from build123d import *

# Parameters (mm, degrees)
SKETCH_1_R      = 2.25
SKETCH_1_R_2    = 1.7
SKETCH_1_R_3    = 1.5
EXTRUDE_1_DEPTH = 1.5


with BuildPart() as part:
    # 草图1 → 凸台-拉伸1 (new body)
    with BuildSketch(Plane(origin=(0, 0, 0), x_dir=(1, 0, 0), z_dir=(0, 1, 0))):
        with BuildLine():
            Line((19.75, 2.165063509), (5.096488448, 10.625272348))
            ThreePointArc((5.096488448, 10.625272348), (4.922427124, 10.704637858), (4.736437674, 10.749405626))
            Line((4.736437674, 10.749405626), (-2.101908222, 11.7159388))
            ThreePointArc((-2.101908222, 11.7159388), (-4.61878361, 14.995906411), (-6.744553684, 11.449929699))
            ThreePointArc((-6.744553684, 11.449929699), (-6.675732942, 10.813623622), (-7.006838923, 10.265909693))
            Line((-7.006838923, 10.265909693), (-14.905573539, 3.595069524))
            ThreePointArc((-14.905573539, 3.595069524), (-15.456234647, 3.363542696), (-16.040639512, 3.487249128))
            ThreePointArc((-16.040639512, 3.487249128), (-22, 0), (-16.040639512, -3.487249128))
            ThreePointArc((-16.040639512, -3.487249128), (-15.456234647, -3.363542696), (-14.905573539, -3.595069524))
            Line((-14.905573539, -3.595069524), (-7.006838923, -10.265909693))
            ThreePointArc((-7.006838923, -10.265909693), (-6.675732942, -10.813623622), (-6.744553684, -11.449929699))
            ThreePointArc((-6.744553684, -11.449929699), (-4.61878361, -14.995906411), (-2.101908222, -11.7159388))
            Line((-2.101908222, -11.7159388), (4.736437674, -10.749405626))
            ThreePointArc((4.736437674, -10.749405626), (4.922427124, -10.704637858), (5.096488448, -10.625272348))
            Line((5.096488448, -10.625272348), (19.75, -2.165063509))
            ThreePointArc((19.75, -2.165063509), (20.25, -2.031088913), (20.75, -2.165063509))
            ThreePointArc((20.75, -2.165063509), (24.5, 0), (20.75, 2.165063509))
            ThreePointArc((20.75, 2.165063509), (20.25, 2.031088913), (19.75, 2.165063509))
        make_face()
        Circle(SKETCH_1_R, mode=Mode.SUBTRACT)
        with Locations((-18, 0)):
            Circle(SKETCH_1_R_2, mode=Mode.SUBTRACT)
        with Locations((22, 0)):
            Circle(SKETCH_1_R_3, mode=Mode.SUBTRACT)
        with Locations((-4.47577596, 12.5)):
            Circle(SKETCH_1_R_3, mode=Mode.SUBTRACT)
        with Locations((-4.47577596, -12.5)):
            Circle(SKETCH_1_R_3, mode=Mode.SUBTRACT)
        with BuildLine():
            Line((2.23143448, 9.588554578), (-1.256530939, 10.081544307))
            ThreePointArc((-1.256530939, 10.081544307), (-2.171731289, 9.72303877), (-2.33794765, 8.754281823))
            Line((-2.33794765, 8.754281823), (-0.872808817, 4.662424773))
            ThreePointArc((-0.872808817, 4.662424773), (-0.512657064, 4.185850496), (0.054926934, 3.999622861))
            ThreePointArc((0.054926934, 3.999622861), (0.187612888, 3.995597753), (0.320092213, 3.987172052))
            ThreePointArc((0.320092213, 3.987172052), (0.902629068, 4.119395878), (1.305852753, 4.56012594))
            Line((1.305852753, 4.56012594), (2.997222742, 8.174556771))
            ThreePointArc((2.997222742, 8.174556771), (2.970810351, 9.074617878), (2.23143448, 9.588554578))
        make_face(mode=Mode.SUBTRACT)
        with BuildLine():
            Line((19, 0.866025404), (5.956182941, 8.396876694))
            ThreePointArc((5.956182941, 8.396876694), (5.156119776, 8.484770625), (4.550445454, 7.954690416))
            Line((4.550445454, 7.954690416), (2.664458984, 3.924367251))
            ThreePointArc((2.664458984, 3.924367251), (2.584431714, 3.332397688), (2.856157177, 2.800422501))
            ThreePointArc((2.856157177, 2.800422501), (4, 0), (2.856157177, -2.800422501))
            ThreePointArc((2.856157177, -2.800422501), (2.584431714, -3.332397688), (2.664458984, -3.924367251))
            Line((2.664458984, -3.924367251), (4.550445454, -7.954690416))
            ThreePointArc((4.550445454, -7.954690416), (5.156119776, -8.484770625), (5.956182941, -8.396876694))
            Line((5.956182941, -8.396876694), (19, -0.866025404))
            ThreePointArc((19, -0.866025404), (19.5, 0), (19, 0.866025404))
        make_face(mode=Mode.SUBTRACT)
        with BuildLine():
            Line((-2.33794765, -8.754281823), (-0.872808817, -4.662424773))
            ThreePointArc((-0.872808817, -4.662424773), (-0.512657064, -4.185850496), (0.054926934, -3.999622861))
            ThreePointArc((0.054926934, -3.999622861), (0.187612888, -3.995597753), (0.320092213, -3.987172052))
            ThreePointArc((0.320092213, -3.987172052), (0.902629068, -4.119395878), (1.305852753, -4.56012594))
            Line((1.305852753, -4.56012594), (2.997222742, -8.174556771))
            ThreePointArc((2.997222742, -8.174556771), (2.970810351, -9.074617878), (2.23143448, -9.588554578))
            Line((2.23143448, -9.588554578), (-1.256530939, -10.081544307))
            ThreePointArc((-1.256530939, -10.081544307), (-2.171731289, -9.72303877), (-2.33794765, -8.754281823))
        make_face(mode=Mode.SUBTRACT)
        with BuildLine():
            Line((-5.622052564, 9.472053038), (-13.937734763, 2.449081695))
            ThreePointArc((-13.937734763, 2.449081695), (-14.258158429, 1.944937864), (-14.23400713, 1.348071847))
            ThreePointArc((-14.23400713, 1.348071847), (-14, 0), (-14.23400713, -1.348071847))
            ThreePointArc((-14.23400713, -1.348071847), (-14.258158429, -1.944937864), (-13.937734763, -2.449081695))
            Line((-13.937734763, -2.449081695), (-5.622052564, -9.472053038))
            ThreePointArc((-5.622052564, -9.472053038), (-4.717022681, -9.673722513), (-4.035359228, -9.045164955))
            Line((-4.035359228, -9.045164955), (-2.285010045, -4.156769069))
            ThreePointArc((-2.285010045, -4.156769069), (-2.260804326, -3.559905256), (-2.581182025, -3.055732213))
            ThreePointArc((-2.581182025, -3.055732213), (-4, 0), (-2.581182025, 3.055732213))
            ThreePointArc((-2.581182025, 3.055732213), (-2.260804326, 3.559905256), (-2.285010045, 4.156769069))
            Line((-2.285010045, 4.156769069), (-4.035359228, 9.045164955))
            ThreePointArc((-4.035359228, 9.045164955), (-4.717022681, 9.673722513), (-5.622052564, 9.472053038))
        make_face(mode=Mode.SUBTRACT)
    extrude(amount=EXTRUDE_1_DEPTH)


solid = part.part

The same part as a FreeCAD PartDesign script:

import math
import FreeCAD as App
import Part
import Sketcher
from FreeCAD import Vector
Q = App.Units.Quantity

doc = App.newDocument("Part")
params = doc.addObject("Spreadsheet::Sheet", "Params")
for row, (alias, value) in enumerate([
    ("sketch1_diameter", "3 mm"),
    ("sketch1_radius", "1 mm"),
    ("sketch1_radius2", "4 mm"),
    ("sketch1_diameter2", "3.4 mm"),
    ("sketch1_diameter3", "4.5 mm"),
    ("pad1_length", "1.5 mm"),
], start=1):
    params.set(f"A{row}", alias)
    params.set(f"B{row}", "=" + value)
    params.setAlias(f"B{row}", alias)

body = doc.addObject("PartDesign::Body", "Body")

# Sketch on XZ plane
sketch1 = body.newObject("Sketcher::SketchObject", "Sketch")
sketch1.AttachmentSupport = (doc.getObject("XZ_Plane"), [""])
sketch1.MapMode = "FlatFace"
sketch1.addGeometry(Part.LineSegment(Vector(19.75, -2.17, 0), Vector(5.1, -10.63, 0)), False)
sketch1.addGeometry(Part.ArcOfCircle(Part.Circle(Vector(4.6, -9.76, 0), Vector(0, 0, 1), 1), math.radians(-82), math.radians(-60)), False)
sketch1.addGeometry(Part.LineSegment(Vector(4.74, -10.75, 0), Vector(-2.1, -11.72, 0)), False)
sketch1.addGeometry(Part.ArcOfCircle(Part.Circle(Vector(-4.48, -12.5, 0), Vector(0, 0, 1), 2.5), math.radians(155), math.radians(378)), False)
sketch1.addGeometry(Part.ArcOfCircle(Part.Circle(Vector(-7.65, -11.03, 0), Vector(0, 0, 1), 1), math.radians(-25), math.radians(50)), False)
sketch1.addGeometry(Part.LineSegment(Vector(-7.01, -10.27, 0), Vector(-14.91, -3.6, 0)), False)
sketch1.addGeometry(Part.ArcOfCircle(Part.Circle(Vector(-15.55, -4.36, 0), Vector(0, 0, 1), 1), math.radians(50), math.radians(119)), False)
sketch1.addGeometry(Part.ArcOfCircle(Part.Circle(Vector(-18, 0, 0), Vector(0, 0, 1), 4), math.radians(61), math.radians(299)), False)
sketch1.addGeometry(Part.ArcOfCircle(Part.Circle(Vector(-15.55, 4.36, 0), Vector(0, 0, 1), 1), math.radians(-119), math.radians(-50)), False)
sketch1.addGeometry(Part.LineSegment(Vector(-14.91, 3.6, 0), Vector(-7.01, 10.27, 0)), False)
sketch1.addGeometry(Part.ArcOfCircle(Part.Circle(Vector(-7.65, 11.03, 0), Vector(0, 0, 1), 1), math.radians(-50), math.radians(25)), False)
sketch1.addGeometry(Part.ArcOfCircle(Part.Circle(Vector(-4.48, 12.5, 0), Vector(0, 0, 1), 2.5), math.radians(-18), math.radians(205)), False)
sketch1.addGeometry(Part.LineSegment(Vector(-2.1, 11.72, 0), Vector(4.74, 10.75, 0)), False)
sketch1.addGeometry(Part.ArcOfCircle(Part.Circle(Vector(4.6, 9.76, 0), Vector(0, 0, 1), 1), math.radians(60), math.radians(82)), False)
sketch1.addGeometry(Part.LineSegment(Vector(5.1, 10.63, 0), Vector(19.75, 2.17, 0)), False)
sketch1.addGeometry(Part.ArcOfCircle(Part.Circle(Vector(20.25, 3.03, 0), Vector(0, 0, 1), 1), math.radians(-120), math.radians(-60)), False)
sketch1.addGeometry(Part.ArcOfCircle(Part.Circle(Vector(22, 0, 0), Vector(0, 0, 1), 2.5), math.radians(-120), math.radians(120)), False)
sketch1.addGeometry(Part.ArcOfCircle(Part.Circle(Vector(20.25, -3.03, 0), Vector(0, 0, 1), 1), math.radians(60), math.radians(120)), False)
sketch1.addGeometry(Part.Circle(Vector(-4.48, 12.5, 0), Vector(0, 0, 1), 1.5), False)
sketch1.addGeometry(Part.ArcOfCircle(Part.Circle(Vector(-1.4, 9.09, 0), Vector(0, 0, 1), 1), math.radians(82), math.radians(200)), False)
sketch1.addGeometry(Part.LineSegment(Vector(-2.34, 8.75, 0), Vector(-0.87, 4.66, 0)), False)
sketch1.addGeometry(Part.ArcOfCircle(Part.Circle(Vector(0.07, 5, 0), Vector(0, 0, 1), 1), math.radians(-160), math.radians(-91)), False)
sketch1.addGeometry(Part.ArcOfCircle(Part.Circle(Vector(0, 0, 0), Vector(0, 0, 1), 4), math.radians(85.41), math.radians(89.21)), False)
sketch1.addGeometry(Part.ArcOfCircle(Part.Circle(Vector(0.4, 4.98, 0), Vector(0, 0, 1), 1), math.radians(-95), math.radians(-25)), False)
sketch1.addGeometry(Part.LineSegment(Vector(1.31, 4.56, 0), Vector(3, 8.17, 0)), False)
sketch1.addGeometry(Part.ArcOfCircle(Part.Circle(Vector(2.09, 8.6, 0), Vector(0, 0, 1), 1), math.radians(-25), math.radians(82)), False)
sketch1.addGeometry(Part.LineSegment(Vector(2.23, 9.59, 0), Vector(-1.26, 10.08, 0)), False)
sketch1.addGeometry(Part.Circle(Vector(-18, 0, 0), Vector(0, 0, 1), 1.7), False)
sketch1.addGeometry(Part.LineSegment(Vector(-13.94, -2.45, 0), Vector(-5.62, -9.47, 0)), False)
sketch1.addGeometry(Part.ArcOfCircle(Part.Circle(Vector(-4.98, -8.71, 0), Vector(0, 0, 1), 1), math.radians(-130), math.radians(-20)), False)
sketch1.addGeometry(Part.LineSegment(Vector(-4.04, -9.05, 0), Vector(-2.29, -4.16, 0)), False)
sketch1.addGeometry(Part.ArcOfCircle(Part.Circle(Vector(-3.23, -3.82, 0), Vector(0, 0, 1), 1), math.radians(-20), math.radians(50)), False)
sketch1.addGeometry(Part.ArcOfCircle(Part.Circle(Vector(0, 0, 0), Vector(0, 0, 1), 4), math.radians(130), math.radians(230)), False)
sketch1.addGeometry(Part.ArcOfCircle(Part.Circle(Vector(-3.23, 3.82, 0), Vector(0, 0, 1), 1), math.radians(-50), math.radians(20)), False)
sketch1.addGeometry(Part.LineSegment(Vector(-2.29, 4.16, 0), Vector(-4.04, 9.05, 0)), False)
sketch1.addGeometry(Part.ArcOfCircle(Part.Circle(Vector(-4.98, 8.71, 0), Vector(0, 0, 1), 1), math.radians(20), math.radians(130)), False)
sketch1.addGeometry(Part.LineSegment(Vector(-5.62, 9.47, 0), Vector(-13.94, 2.45, 0)), False)
sketch1.addGeometry(Part.ArcOfCircle(Part.Circle(Vector(-13.29, 1.69, 0), Vector(0, 0, 1), 1), math.radians(130), math.radians(200)), False)
sketch1.addGeometry(Part.ArcOfCircle(Part.Circle(Vector(-18, 0, 0), Vector(0, 0, 1), 4), math.radians(-20), math.radians(20)), False)
sketch1.addGeometry(Part.ArcOfCircle(Part.Circle(Vector(-13.29, -1.69, 0), Vector(0, 0, 1), 1), math.radians(160), math.radians(230)), False)
sketch1.addGeometry(Part.Circle(Vector(0, 0, 0), Vector(0, 0, 1), 2.25), False)
sketch1.addGeometry(Part.LineSegment(Vector(-1.26, -10.08, 0), Vector(2.23, -9.59, 0)), False)
sketch1.addGeometry(Part.ArcOfCircle(Part.Circle(Vector(2.09, -8.6, 0), Vector(0, 0, 1), 1), math.radians(-82), math.radians(25)), False)
sketch1.addGeometry(Part.LineSegment(Vector(3, -8.17, 0), Vector(1.31, -4.56, 0)), False)
sketch1.addGeometry(Part.ArcOfCircle(Part.Circle(Vector(0.4, -4.98, 0), Vector(0, 0, 1), 1), math.radians(25), math.radians(95)), False)
sketch1.addGeometry(Part.ArcOfCircle(Part.Circle(Vector(0, 0, 0), Vector(0, 0, 1), 4), math.radians(-89.21), math.radians(-85.41)), False)
sketch1.addGeometry(Part.ArcOfCircle(Part.Circle(Vector(0.07, -5, 0), Vector(0, 0, 1), 1), math.radians(91), math.radians(160)), False)
sketch1.addGeometry(Part.LineSegment(Vector(-0.87, -4.66, 0), Vector(-2.34, -8.75, 0)), False)
sketch1.addGeometry(Part.ArcOfCircle(Part.Circle(Vector(-1.4, -9.09, 0), Vector(0, 0, 1), 1), math.radians(160), math.radians(278)), False)
sketch1.addGeometry(Part.Circle(Vector(-4.48, -12.5, 0), Vector(0, 0, 1), 1.5), False)
sketch1.addGeometry(Part.LineSegment(Vector(5.96, -8.4, 0), Vector(19, -0.87, 0)), False)
sketch1.addGeometry(Part.ArcOfCircle(Part.Circle(Vector(18.5, 0, 0), Vector(0, 0, 1), 1), math.radians(-60), math.radians(60)), False)
sketch1.addGeometry(Part.LineSegment(Vector(19, 0.87, 0), Vector(5.96, 8.4, 0)), False)
sketch1.addGeometry(Part.ArcOfCircle(Part.Circle(Vector(5.46, 7.53, 0), Vector(0, 0, 1), 1), math.radians(60), math.radians(155)), False)
sketch1.addGeometry(Part.LineSegment(Vector(4.55, 7.95, 0), Vector(2.66, 3.92, 0)), False)
sketch1.addGeometry(Part.ArcOfCircle(Part.Circle(Vector(3.57, 3.5, 0), Vector(0, 0, 1), 1), math.radians(155), math.radians(224)), False)
sketch1.addGeometry(Part.ArcOfCircle(Part.Circle(Vector(0, 0, 0), Vector(0, 0, 1), 4), math.radians(-44), math.radians(44)), False)
sketch1.addGeometry(Part.ArcOfCircle(Part.Circle(Vector(3.57, -3.5, 0), Vector(0, 0, 1), 1), math.radians(136), math.radians(205)), False)
sketch1.addGeometry(Part.LineSegment(Vector(2.66, -3.92, 0), Vector(4.55, -7.95, 0)), False)
sketch1.addGeometry(Part.ArcOfCircle(Part.Circle(Vector(5.46, -7.53, 0), Vector(0, 0, 1), 1), math.radians(-155), math.radians(-60)), False)
sketch1.addGeometry(Part.Circle(Vector(22, 0, 0), Vector(0, 0, 1), 1.5), False)
sketch1.addConstraint(Sketcher.Constraint("Tangent", 0, 2, 1, 2))
sketch1.addConstraint(Sketcher.Constraint("Tangent", 1, 1, 2, 1))
sketch1.addConstraint(Sketcher.Constraint("Coincident", 2, 2, 3, 2))
sketch1.addConstraint(Sketcher.Constraint("Tangent", 3, 1, 4, 1))
sketch1.addConstraint(Sketcher.Constraint("Tangent", 4, 2, 5, 1))
sketch1.addConstraint(Sketcher.Constraint("Tangent", 5, 2, 6, 1))
sketch1.addConstraint(Sketcher.Constraint("Tangent", 6, 2, 7, 2))
sketch1.addConstraint(Sketcher.Constraint("Tangent", 7, 1, 8, 1))
sketch1.addConstraint(Sketcher.Constraint("Tangent", 8, 2, 9, 1))
sketch1.addConstraint(Sketcher.Constraint("Tangent", 9, 2, 10, 1))
sketch1.addConstraint(Sketcher.Constraint("Tangent", 10, 2, 11, 2))
sketch1.addConstraint(Sketcher.Constraint("Coincident", 11, 1, 12, 1))
sketch1.addConstraint(Sketcher.Constraint("Tangent", 12, 2, 13, 2))
sketch1.addConstraint(Sketcher.Constraint("Tangent", 13, 1, 14, 1))
sketch1.addConstraint(Sketcher.Constraint("Tangent", 14, 2, 15, 1))
sketch1.addConstraint(Sketcher.Constraint("Tangent", 15, 2, 16, 2))
sketch1.addConstraint(Sketcher.Constraint("Tangent", 16, 1, 17, 1))
sketch1.addConstraint(Sketcher.Constraint("Tangent", 17, 2, 0, 1))
sketch1.addConstraint(Sketcher.Constraint("Tangent", 19, 2, 20, 1))
sketch1.addConstraint(Sketcher.Constraint("Tangent", 20, 2, 21, 1))
sketch1.addConstraint(Sketcher.Constraint("Tangent", 21, 2, 22, 2))
sketch1.addConstraint(Sketcher.Constraint("Tangent", 22, 1, 23, 1))
sketch1.addConstraint(Sketcher.Constraint("Tangent", 23, 2, 24, 1))
sketch1.addConstraint(Sketcher.Constraint("Tangent", 24, 2, 25, 1))
sketch1.addConstraint(Sketcher.Constraint("Tangent", 25, 2, 26, 1))
sketch1.addConstraint(Sketcher.Constraint("Tangent", 26, 2, 19, 1))
sketch1.addConstraint(Sketcher.Constraint("Tangent", 28, 2, 29, 1))
sketch1.addConstraint(Sketcher.Constraint("Tangent", 29, 2, 30, 1))
sketch1.addConstraint(Sketcher.Constraint("Tangent", 30, 2, 31, 1))
sketch1.addConstraint(Sketcher.Constraint("Tangent", 31, 2, 32, 2))
sketch1.addConstraint(Sketcher.Constraint("Tangent", 32, 1, 33, 1))
sketch1.addConstraint(Sketcher.Constraint("Tangent", 33, 2, 34, 1))
sketch1.addConstraint(Sketcher.Constraint("Tangent", 34, 2, 35, 1))
sketch1.addConstraint(Sketcher.Constraint("Tangent", 35, 2, 36, 1))
sketch1.addConstraint(Sketcher.Constraint("Tangent", 36, 2, 37, 1))
sketch1.addConstraint(Sketcher.Constraint("Tangent", 37, 2, 38, 2))
sketch1.addConstraint(Sketcher.Constraint("Tangent", 38, 1, 39, 1))
sketch1.addConstraint(Sketcher.Constraint("Tangent", 39, 2, 28, 1))
sketch1.addConstraint(Sketcher.Constraint("Tangent", 41, 2, 42, 1))
sketch1.addConstraint(Sketcher.Constraint("Tangent", 42, 2, 43, 1))
sketch1.addConstraint(Sketcher.Constraint("Tangent", 43, 2, 44, 1))
sketch1.addConstraint(Sketcher.Constraint("Tangent", 44, 2, 45, 2))
sketch1.addConstraint(Sketcher.Constraint("Tangent", 45, 1, 46, 1))
sketch1.addConstraint(Sketcher.Constraint("Tangent", 46, 2, 47, 1))
sketch1.addConstraint(Sketcher.Constraint("Tangent", 47, 2, 48, 1))
sketch1.addConstraint(Sketcher.Constraint("Tangent", 48, 2, 41, 1))
sketch1.addConstraint(Sketcher.Constraint("Tangent", 50, 2, 51, 1))
sketch1.addConstraint(Sketcher.Constraint("Tangent", 51, 2, 52, 1))
sketch1.addConstraint(Sketcher.Constraint("Tangent", 52, 2, 53, 1))
sketch1.addConstraint(Sketcher.Constraint("Tangent", 53, 2, 54, 1))
sketch1.addConstraint(Sketcher.Constraint("Tangent", 54, 2, 55, 1))
sketch1.addConstraint(Sketcher.Constraint("Tangent", 55, 2, 56, 2))
sketch1.addConstraint(Sketcher.Constraint("Tangent", 56, 1, 57, 1))
sketch1.addConstraint(Sketcher.Constraint("Tangent", 57, 2, 58, 1))
sketch1.addConstraint(Sketcher.Constraint("Tangent", 58, 2, 59, 1))
sketch1.addConstraint(Sketcher.Constraint("Tangent", 59, 2, 50, 1))
sketch1.addConstraint(Sketcher.Constraint("Coincident", 22, 3, -1, 1))
sketch1.addConstraint(Sketcher.Constraint("Coincident", 32, 3, -1, 1))
sketch1.addConstraint(Sketcher.Constraint("Coincident", 40, 3, -1, 1))
sketch1.addConstraint(Sketcher.Constraint("Coincident", 45, 3, -1, 1))
sketch1.addConstraint(Sketcher.Constraint("Coincident", 56, 3, -1, 1))
sketch1.addConstraint(Sketcher.Constraint("Coincident", 18, 3, 11, 3))
sketch1.addConstraint(Sketcher.Constraint("Coincident", 27, 3, 7, 3))
sketch1.addConstraint(Sketcher.Constraint("Coincident", 38, 3, 7, 3))
sketch1.addConstraint(Sketcher.Constraint("Coincident", 49, 3, 3, 3))
sketch1.addConstraint(Sketcher.Constraint("Coincident", 60, 3, 16, 3))
sketch1.addConstraint(Sketcher.Constraint("Equal", 1, 4))
sketch1.addConstraint(Sketcher.Constraint("Equal", 4, 6))
sketch1.addConstraint(Sketcher.Constraint("Equal", 6, 8))
sketch1.addConstraint(Sketcher.Constraint("Equal", 8, 10))
sketch1.addConstraint(Sketcher.Constraint("Equal", 3, 11))
sketch1.addConstraint(Sketcher.Constraint("Equal", 10, 13))
sketch1.addConstraint(Sketcher.Constraint("Equal", 13, 15))
sketch1.addConstraint(Sketcher.Constraint("Equal", 11, 16))
sketch1.addConstraint(Sketcher.Constraint("Equal", 15, 17))
sketch1.addConstraint(Sketcher.Constraint("Equal", 17, 19))
sketch1.addConstraint(Sketcher.Constraint("Equal", 19, 21))
sketch1.addConstraint(Sketcher.Constraint("Equal", 7, 22))
sketch1.addConstraint(Sketcher.Constraint("Equal", 21, 23))
sketch1.addConstraint(Sketcher.Constraint("Equal", 23, 25))
sketch1.addConstraint(Sketcher.Constraint("Equal", 25, 29))
sketch1.addConstraint(Sketcher.Constraint("Equal", 29, 31))
sketch1.addConstraint(Sketcher.Constraint("Equal", 22, 32))
sketch1.addConstraint(Sketcher.Constraint("Equal", 31, 33))
sketch1.addConstraint(Sketcher.Constraint("Equal", 33, 35))
sketch1.addConstraint(Sketcher.Constraint("Equal", 35, 37))
sketch1.addConstraint(Sketcher.Constraint("Equal", 32, 38))
sketch1.addConstraint(Sketcher.Constraint("Equal", 37, 39))
sketch1.addConstraint(Sketcher.Constraint("Equal", 39, 42))
sketch1.addConstraint(Sketcher.Constraint("Equal", 42, 44))
sketch1.addConstraint(Sketcher.Constraint("Equal", 38, 45))
sketch1.addConstraint(Sketcher.Constraint("Equal", 44, 46))
sketch1.addConstraint(Sketcher.Constraint("Equal", 46, 48))
sketch1.addConstraint(Sketcher.Constraint("Equal", 18, 49))
sketch1.addConstraint(Sketcher.Constraint("Equal", 48, 51))
sketch1.addConstraint(Sketcher.Constraint("Equal", 51, 53))
sketch1.addConstraint(Sketcher.Constraint("Equal", 53, 55))
sketch1.addConstraint(Sketcher.Constraint("Equal", 45, 56))
sketch1.addConstraint(Sketcher.Constraint("Equal", 55, 57))
sketch1.addConstraint(Sketcher.Constraint("Equal", 57, 59))
sketch1.addConstraint(Sketcher.Constraint("Equal", 49, 60))
sketch1.addConstraint(Sketcher.Constraint("Symmetric", 6, 3, 8, 3, -1))
sketch1.addConstraint(Sketcher.Constraint("Symmetric", 4, 3, 10, 3, -1))
sketch1.addConstraint(Sketcher.Constraint("Symmetric", 1, 3, 13, 3, -1))
sketch1.addConstraint(Sketcher.Constraint("Symmetric", 15, 3, 17, 3, -1))
sketch1.addConstraint(Sketcher.Constraint("Symmetric", 29, 3, 35, 3, -1))
sketch1.addConstraint(Sketcher.Constraint("Symmetric", 25, 3, 42, 3, -1))
sketch1.addConstraint(Sketcher.Constraint("Symmetric", 19, 3, 48, 3, -1))
sketch1.addConstraint(Sketcher.Constraint("Symmetric", 53, 3, 59, 3, -1))
sketch1.addConstraint(Sketcher.Constraint("Symmetric", 2, 2, 11, 1, -1))
sketch1.addConstraint(Sketcher.Constraint("PointOnObject", 51, 3, -1))
sketch1.addConstraint(Sketcher.Constraint("Parallel", 12, 26))
sketch1.addConstraint(Sketcher.Constraint("Parallel", 5, 28))
sketch1.addConstraint(Sketcher.Constraint("Parallel", 20, 34))
sketch1.addConstraint(Sketcher.Constraint("Parallel", 9, 36))
sketch1.addConstraint(Sketcher.Constraint("Parallel", 30, 47))
sketch1.addConstraint(Sketcher.Constraint("Parallel", 0, 50))
sketch1.addConstraint(Sketcher.Constraint("Parallel", 24, 54))
sketch1.addConstraint(Sketcher.Constraint("Parallel", 43, 58))
sketch1.addConstraint(Sketcher.Constraint("Horizontal", 14, 2, 15, 2))
sketch1.addConstraint(Sketcher.Constraint("Vertical", 31, 3, 33, 3))
sketch1.addConstraint(Sketcher.Constraint("Vertical", 23, 3, 44, 3))
sketch1.addConstraint(Sketcher.Constraint("Diameter", 18, Q("3 mm")))
sketch1.addConstraint(Sketcher.Constraint("Radius", 1, Q("1 mm")))
sketch1.addConstraint(Sketcher.Constraint("Radius", 7, Q("4 mm")))
sketch1.addConstraint(Sketcher.Constraint("Diameter", 27, Q("3.4 mm")))
sketch1.addConstraint(Sketcher.Constraint("Diameter", 40, Q("4.5 mm")))
sketch1.addConstraint(Sketcher.Constraint("Radius", 3, Q("2.5 mm")))
sketch1.addConstraint(Sketcher.Constraint("Angle", 0, Q("-150 deg")))
sketch1.addConstraint(Sketcher.Constraint("DistanceX", 7, 3, -1, 1, Q("18 mm")))
sketch1.addConstraint(Sketcher.Constraint("DistanceX", -1, 1, 16, 3, Q("22 mm")))
sketch1.addConstraint(Sketcher.Constraint("DistanceX", -1, 1, 50, 2, Q("19 mm")))
sketch1.addConstraint(Sketcher.Constraint("DistanceY", 3, 3, -1, 1, Q("12.5 mm")))
sketch1.addConstraint(Sketcher.Constraint("DistanceY", 4, 3, -1, 1, Q("11.029902 mm")))
sketch1.addConstraint(Sketcher.Constraint("DistanceX", 6, 3, -1, 1, Q("15.550799 mm")))
sketch1.addConstraint(Sketcher.Constraint("Distance", 54, Q("4.44977 mm")))
sketch1.addConstraint(Sketcher.Constraint("DistanceX", -1, 1, 1, 3, Q("4.596488 mm")))
sketch1.addConstraint(Sketcher.Constraint("DistanceX", 19, 3, -1, 1, Q("1.39648 mm")))
sketch1.addConstraint(Sketcher.Constraint("DistanceX", -1, 1, 21, 3, Q("0.068659 mm")))
sketch1.addConstraint(Sketcher.Constraint("DistanceY", 29, 3, -1, 1, Q("8.708061 mm")))
sketch1.addConstraint(Sketcher.Constraint("DistanceX", 37, 3, -1, 1, Q("13.292509 mm")))
sketch1.addConstraint(Sketcher.Constraint("DistanceY", -1, 1, 53, 3, Q("7.530851 mm")))
sketch1.addConstraint(Sketcher.Constraint("DistanceX", 2, 2, -1, 1, Q("2.101908 mm")))
sketch1.addConstraint(Sketcher.Constraint("DistanceY", 2, 2, -1, 1, Q("11.715939 mm")))
sketch1.addConstraint(Sketcher.Constraint("DistanceY", -1, 1, 19, 2, Q("8.754282 mm")))
sketch1.addConstraint(Sketcher.Constraint("Distance", 24, Q("3.990594 mm")))
sketch1.setExpression("Constraints[122]", "Params.sketch1_diameter")
sketch1.setExpression("Constraints[123]", "Params.sketch1_radius")
sketch1.setExpression("Constraints[124]", "Params.sketch1_radius2")
sketch1.setExpression("Constraints[125]", "Params.sketch1_diameter2")
sketch1.setExpression("Constraints[126]", "Params.sketch1_diameter3")
pad1 = body.newObject("PartDesign::Pad", "Pad")
pad1.Profile = sketch1
pad1.setExpression("Length", "Params.pad1_length")
pad1.Reversed = True

doc.recompute()
